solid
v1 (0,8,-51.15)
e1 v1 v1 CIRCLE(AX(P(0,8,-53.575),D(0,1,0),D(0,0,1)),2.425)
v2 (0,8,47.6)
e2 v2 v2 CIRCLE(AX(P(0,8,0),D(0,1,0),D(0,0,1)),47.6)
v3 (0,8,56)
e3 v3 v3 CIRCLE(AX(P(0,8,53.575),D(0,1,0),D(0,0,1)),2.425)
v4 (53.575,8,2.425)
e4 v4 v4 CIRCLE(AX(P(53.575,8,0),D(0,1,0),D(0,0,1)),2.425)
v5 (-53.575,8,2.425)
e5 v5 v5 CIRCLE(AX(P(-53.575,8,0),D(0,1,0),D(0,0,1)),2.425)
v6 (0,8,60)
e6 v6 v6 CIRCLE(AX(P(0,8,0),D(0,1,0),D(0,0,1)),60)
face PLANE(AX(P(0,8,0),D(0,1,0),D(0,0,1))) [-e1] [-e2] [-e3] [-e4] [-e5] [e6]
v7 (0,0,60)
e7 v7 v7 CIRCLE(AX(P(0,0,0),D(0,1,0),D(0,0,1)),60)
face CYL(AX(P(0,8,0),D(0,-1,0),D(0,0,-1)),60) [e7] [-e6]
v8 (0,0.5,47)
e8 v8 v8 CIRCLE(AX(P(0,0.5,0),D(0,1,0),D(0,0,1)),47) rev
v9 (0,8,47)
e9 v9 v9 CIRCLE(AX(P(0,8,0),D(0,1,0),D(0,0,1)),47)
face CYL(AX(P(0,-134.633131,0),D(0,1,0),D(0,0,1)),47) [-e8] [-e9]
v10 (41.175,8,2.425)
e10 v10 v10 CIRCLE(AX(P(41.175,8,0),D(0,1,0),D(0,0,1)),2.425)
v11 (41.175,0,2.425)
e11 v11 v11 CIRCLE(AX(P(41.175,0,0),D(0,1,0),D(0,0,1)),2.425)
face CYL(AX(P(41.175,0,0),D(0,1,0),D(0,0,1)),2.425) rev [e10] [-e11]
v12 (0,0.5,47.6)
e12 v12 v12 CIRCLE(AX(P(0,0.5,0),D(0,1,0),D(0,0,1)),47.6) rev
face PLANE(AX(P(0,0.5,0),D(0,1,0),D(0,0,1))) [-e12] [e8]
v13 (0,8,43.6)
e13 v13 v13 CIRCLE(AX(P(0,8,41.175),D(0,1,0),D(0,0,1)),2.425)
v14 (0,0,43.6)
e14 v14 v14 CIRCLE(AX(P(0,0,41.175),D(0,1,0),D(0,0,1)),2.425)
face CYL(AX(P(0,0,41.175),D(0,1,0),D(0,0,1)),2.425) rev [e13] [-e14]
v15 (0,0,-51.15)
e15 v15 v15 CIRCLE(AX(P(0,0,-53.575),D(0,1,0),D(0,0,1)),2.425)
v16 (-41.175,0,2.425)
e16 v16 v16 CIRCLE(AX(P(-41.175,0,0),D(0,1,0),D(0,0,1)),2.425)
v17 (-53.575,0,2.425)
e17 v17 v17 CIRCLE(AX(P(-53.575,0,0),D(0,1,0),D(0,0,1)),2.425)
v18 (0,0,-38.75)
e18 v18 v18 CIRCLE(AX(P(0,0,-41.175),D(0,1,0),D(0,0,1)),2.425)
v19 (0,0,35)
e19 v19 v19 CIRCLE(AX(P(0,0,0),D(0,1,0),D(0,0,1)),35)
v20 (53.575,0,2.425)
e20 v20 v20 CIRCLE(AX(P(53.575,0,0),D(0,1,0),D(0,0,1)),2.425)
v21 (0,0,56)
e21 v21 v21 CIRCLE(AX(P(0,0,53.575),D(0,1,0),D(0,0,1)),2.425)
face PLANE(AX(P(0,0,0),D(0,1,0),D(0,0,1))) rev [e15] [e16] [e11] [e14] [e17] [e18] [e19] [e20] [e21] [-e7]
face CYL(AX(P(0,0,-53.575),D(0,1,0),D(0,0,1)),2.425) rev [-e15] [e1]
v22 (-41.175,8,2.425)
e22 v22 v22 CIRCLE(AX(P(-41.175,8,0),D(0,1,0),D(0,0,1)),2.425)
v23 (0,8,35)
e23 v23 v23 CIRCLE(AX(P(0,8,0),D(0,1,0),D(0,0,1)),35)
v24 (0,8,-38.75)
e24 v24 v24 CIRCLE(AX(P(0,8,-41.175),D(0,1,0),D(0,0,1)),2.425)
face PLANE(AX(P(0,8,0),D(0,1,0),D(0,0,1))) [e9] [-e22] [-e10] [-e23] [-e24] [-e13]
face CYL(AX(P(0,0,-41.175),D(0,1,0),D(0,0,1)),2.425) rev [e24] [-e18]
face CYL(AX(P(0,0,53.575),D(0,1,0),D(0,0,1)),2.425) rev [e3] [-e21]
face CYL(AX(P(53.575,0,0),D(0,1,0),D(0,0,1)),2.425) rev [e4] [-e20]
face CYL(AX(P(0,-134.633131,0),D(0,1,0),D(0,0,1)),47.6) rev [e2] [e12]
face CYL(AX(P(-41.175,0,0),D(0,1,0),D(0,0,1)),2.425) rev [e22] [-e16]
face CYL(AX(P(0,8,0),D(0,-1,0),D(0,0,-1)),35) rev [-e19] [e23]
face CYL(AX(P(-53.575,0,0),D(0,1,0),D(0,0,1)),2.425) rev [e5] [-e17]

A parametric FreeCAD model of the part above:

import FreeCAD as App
import Part
import Sketcher

V = App.Vector

doc = App.newDocument("Part")
body = doc.addObject("PartDesign::Body", "Body")

sketch1 = body.newObject("Sketcher::SketchObject", "Sketch")
sketch1.AttachmentSupport = (doc.getObject("XZ_Plane"), [""])
sketch1.MapMode = "FlatFace"
sketch1.addGeometry([
    Part.Circle(V(0, 0, 0), V(0, 0, 1), 60),
    Part.Circle(V(0, 0, 0), V(0, 0, 1), 35),
], False)
sketch1.addConstraint([
    Sketcher.Constraint("Coincident", 0, 3, -1, 1),
    Sketcher.Constraint("Coincident", 1, 3, -1, 1),
    Sketcher.Constraint("Diameter", 0, 120.0),
    Sketcher.Constraint("Diameter", 1, 70.0),
])
pad1 = body.newObject("PartDesign::Pad", "Pad")
pad1.Profile = sketch1
pad1.Length = 8
pad1.Reversed = True

sketch2 = body.newObject("Sketcher::SketchObject", "Sketch001")
sketch2.AttachmentSupport = (doc.getObject("XZ_Plane"), [""])
sketch2.MapMode = "FlatFace"
sketch2.AttachmentOffset = App.Placement(V(0, 0, -8), App.Rotation())
sketch2.addGeometry([
    Part.Circle(V(0, 0, 0), V(0, 0, 1), 48),
    Part.Circle(V(0, 0, 0), V(0, 0, 1), 47),
], False)
sketch2.addConstraint([
    Sketcher.Constraint("Coincident", 0, 3, -1, 1),
    Sketcher.Constraint("Coincident", 1, 3, -1, 1),
    Sketcher.Constraint("Diameter", 1, 94.0),
    Sketcher.Constraint("Diameter", 0, 95.2),
])
pocket1 = body.newObject("PartDesign::Pocket", "Pocket")
pocket1.Profile = sketch2
pocket1.Length = 7.5
pocket1.Reversed = True

sketch3 = body.newObject("Sketcher::SketchObject", "Sketch002")
sketch3.AttachmentSupport = (doc.getObject("XZ_Plane"), [""])
sketch3.MapMode = "FlatFace"
sketch3.AttachmentOffset = App.Placement(V(0, 0, -8), App.Rotation())
sketch3.addGeometry([
    Part.Circle(V(-41.2, 0, 0), V(0, 0, 1), 2.4),
    Part.Circle(V(0, -41.2, 0), V(0, 0, 1), 2.4),
    Part.Circle(V(41.2, 0, 0), V(0, 0, 1), 2.4),
    Part.Circle(V(0, 41.2, 0), V(0, 0, 1), 2.4),
], False)
sketch3.addConstraint([
    Sketcher.Constraint("Equal", 0, 1),
    Sketcher.Constraint("Equal", 1, 2),
    Sketcher.Constraint("Equal", 2, 3),
    Sketcher.Constraint("Symmetric", 0, 3, 2, 3, -1, 1),
    Sketcher.Constraint("Symmetric", 1, 3, 3, 3, -1, 1),
    Sketcher.Constraint("PointOnObject", 0, 3, -1),
    Sketcher.Constraint("PointOnObject", 1, 3, -2),
    Sketcher.Constraint("Diameter", 0, 4.85),
    Sketcher.Constraint("DistanceX", 0, 3, 2, 3, 82.35),
    Sketcher.Constraint("DistanceY", 1, 3, 3, 3, 82.35),
])
pocket2 = body.newObject("PartDesign::Pocket", "Pocket001")
pocket2.Profile = sketch3
pocket2.Type = "ThroughAll"
pocket2.Reversed = True

sketch4 = body.newObject("Sketcher::SketchObject", "Sketch003")
sketch4.AttachmentSupport = (doc.getObject("XZ_Plane"), [""])
sketch4.MapMode = "FlatFace"
sketch4.AttachmentOffset = App.Placement(V(0, 0, -8), App.Rotation())
sketch4.addGeometry([
    Part.Circle(V(0, -53.6, 0), V(0, 0, 1), 2.4),
    Part.Circle(V(53.6, 0, 0), V(0, 0, 1), 2.4),
    Part.Circle(V(0, 53.6, 0), V(0, 0, 1), 2.4),
    Part.Circle(V(-53.6, 0, 0), V(0, 0, 1), 2.4),
], False)
sketch4.addConstraint([
    Sketcher.Constraint("Equal", 0, 1),
    Sketcher.Constraint("Equal", 1, 2),
    Sketcher.Constraint("Equal", 2, 3),
    Sketcher.Constraint("Symmetric", 0, 3, 2, 3, -1, 1),
    Sketcher.Constraint("Symmetric", 1, 3, 3, 3, -1, 1),
    Sketcher.Constraint("PointOnObject", 0, 3, -2),
    Sketcher.Constraint("PointOnObject", 1, 3, -1),
    Sketcher.Constraint("Diameter", 0, 4.85),
    Sketcher.Constraint("DistanceY", 0, 3, 2, 3, 107.15),
    Sketcher.Constraint("DistanceX", 3, 3, 1, 3, 107.15),
])
pocket3 = body.newObject("PartDesign::Pocket", "Pocket002")
pocket3.Profile = sketch4
pocket3.Type = "ThroughAll"
pocket3.Reversed = True

doc.recompute()
